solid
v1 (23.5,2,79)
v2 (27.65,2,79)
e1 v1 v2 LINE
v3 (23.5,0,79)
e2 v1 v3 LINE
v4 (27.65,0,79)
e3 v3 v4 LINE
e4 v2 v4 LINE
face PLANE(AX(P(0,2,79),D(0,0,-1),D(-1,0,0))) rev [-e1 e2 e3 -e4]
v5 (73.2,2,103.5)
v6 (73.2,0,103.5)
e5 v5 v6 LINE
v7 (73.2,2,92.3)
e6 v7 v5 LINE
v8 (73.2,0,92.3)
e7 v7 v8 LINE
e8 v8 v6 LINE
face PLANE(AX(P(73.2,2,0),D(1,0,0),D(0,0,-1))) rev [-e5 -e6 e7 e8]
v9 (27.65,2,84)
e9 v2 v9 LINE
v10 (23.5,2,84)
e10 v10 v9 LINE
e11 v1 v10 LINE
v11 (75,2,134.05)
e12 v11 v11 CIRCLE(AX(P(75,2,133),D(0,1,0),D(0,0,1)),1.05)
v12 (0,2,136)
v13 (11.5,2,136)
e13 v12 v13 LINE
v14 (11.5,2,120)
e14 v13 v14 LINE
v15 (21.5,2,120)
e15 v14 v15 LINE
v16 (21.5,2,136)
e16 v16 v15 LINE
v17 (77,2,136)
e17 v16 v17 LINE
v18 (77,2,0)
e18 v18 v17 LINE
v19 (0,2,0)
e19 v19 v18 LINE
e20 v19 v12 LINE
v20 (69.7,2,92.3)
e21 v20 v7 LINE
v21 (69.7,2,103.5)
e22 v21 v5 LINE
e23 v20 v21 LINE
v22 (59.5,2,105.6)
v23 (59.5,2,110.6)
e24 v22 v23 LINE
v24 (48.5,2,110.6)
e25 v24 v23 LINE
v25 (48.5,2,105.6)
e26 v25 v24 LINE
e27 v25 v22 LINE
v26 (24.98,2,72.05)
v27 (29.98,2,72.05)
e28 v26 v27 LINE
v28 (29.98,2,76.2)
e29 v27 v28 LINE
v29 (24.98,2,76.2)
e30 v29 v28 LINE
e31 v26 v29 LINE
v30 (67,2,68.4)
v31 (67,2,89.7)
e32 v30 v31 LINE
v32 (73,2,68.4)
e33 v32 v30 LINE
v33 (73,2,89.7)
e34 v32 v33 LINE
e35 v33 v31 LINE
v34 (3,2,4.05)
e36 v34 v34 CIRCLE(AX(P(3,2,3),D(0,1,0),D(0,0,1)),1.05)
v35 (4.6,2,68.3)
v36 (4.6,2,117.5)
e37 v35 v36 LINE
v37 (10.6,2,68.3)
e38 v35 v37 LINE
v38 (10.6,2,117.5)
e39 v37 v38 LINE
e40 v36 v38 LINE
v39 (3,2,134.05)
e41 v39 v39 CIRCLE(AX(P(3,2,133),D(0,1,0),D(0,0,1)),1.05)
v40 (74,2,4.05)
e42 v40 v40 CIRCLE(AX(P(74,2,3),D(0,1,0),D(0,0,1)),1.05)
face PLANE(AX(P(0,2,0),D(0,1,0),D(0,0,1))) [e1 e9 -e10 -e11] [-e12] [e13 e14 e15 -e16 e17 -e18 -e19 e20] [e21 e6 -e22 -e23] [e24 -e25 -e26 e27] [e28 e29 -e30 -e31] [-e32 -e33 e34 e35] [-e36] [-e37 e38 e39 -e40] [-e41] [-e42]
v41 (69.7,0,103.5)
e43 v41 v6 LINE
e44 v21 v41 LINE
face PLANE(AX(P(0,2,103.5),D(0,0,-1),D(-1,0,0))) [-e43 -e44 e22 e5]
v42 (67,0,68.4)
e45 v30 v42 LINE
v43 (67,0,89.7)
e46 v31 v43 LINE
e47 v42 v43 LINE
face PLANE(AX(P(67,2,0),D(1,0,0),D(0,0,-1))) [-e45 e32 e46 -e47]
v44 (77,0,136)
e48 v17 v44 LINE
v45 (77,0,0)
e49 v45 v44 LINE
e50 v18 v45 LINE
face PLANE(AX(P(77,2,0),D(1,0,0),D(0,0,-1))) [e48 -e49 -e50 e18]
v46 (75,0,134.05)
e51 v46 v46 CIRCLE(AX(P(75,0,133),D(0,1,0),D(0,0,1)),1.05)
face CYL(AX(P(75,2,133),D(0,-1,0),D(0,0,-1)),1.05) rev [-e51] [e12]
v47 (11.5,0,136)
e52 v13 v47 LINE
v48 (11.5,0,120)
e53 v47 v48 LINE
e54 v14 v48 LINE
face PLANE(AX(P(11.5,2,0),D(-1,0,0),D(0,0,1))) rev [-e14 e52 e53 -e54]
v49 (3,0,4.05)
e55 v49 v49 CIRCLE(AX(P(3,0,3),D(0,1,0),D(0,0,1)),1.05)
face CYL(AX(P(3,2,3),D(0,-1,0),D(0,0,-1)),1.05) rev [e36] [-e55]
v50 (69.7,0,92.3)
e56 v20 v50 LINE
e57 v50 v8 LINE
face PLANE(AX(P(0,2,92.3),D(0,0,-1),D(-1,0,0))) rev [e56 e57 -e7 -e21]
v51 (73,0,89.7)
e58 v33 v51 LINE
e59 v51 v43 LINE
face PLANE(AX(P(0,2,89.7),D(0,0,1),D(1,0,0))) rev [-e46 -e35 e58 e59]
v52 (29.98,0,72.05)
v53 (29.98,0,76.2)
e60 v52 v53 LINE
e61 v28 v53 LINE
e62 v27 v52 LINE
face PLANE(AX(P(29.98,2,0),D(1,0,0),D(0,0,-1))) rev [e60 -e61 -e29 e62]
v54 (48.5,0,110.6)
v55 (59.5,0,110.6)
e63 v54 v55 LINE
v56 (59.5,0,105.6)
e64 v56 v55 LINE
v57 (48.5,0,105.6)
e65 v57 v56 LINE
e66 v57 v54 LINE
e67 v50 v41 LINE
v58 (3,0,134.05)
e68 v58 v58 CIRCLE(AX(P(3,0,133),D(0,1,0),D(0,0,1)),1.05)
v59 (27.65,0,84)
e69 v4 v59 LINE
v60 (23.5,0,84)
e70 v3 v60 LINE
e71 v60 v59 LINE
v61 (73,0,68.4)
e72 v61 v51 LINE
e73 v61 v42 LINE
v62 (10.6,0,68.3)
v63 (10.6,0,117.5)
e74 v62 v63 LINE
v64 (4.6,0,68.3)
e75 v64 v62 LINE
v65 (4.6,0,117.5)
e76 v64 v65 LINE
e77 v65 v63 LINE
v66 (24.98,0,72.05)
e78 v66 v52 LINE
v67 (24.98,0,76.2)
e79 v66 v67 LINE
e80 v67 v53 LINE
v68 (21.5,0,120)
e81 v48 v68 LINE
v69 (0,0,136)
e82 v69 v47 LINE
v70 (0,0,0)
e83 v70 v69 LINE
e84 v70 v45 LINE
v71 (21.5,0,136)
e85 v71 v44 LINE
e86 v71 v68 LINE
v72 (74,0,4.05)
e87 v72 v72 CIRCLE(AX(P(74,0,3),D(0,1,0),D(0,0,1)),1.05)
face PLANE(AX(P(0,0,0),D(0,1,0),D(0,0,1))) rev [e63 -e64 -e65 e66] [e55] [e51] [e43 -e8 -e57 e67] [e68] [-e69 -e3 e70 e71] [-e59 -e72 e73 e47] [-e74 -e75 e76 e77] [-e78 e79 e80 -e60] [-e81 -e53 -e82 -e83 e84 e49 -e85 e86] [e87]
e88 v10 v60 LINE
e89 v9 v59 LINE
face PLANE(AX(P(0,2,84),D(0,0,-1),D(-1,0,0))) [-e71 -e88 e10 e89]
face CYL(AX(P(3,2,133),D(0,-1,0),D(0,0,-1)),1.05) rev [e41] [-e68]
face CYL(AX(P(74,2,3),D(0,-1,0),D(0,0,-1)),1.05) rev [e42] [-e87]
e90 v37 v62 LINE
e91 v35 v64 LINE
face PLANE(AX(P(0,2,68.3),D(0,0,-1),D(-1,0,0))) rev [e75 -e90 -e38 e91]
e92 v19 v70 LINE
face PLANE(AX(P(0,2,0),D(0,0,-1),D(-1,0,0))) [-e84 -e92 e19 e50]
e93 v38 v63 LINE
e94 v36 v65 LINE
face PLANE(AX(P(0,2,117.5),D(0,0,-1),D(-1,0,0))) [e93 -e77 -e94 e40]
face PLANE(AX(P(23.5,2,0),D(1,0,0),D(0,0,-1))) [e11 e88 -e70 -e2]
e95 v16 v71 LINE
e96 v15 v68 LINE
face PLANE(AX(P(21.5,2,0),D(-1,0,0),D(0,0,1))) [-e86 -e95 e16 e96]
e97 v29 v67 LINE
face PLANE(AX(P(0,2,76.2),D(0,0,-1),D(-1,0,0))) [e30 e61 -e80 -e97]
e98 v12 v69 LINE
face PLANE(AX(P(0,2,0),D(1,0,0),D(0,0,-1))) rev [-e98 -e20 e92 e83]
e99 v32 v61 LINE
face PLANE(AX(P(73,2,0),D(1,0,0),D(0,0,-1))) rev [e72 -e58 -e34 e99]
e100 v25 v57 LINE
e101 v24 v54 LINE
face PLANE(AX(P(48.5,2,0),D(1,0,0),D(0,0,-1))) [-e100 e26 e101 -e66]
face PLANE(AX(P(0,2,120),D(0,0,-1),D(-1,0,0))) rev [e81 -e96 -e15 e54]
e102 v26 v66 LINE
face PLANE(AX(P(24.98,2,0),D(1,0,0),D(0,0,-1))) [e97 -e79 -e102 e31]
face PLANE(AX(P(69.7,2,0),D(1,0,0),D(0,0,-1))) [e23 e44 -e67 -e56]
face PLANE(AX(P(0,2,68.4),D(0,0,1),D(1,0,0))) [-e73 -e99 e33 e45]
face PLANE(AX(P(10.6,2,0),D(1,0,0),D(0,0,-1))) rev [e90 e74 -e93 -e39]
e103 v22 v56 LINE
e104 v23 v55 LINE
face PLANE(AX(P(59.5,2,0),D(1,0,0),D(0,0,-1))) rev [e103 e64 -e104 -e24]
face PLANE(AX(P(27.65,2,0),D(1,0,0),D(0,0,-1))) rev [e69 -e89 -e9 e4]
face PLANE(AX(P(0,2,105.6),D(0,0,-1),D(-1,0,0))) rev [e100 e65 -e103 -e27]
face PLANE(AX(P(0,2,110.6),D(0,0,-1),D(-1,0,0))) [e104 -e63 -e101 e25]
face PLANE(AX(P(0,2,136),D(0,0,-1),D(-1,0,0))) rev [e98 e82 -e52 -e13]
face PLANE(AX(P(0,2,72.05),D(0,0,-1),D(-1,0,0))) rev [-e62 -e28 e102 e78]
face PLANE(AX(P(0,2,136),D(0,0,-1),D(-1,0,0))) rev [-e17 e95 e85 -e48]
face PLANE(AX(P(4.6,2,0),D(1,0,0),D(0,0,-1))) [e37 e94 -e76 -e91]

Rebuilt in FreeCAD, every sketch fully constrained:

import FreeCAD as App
import Part
import Sketcher

V = App.Vector


def add_polygon(sketch, points):
    """Adds a closed chain of lines whose ends are joined by coincident constraints."""
    first, n = sketch.GeometryCount, len(points)
    for a, b in zip(points, points[1:] + points[:1]):
        sketch.addGeometry(Part.LineSegment(App.Vector(*a, 0), App.Vector(*b, 0)), False)
    for i in range(n):
        sketch.addConstraint(Sketcher.Constraint("Coincident", first + i, 2, first + (i + 1) % n, 1))

doc = App.newDocument("Part")
body = doc.addObject("PartDesign::Body", "Body")

sketch1 = body.newObject("Sketcher::SketchObject", "Sketch")
sketch1.AttachmentSupport = (doc.getObject("XZ_Plane"), [""])
sketch1.MapMode = "FlatFace"
add_polygon(sketch1, [(77, 0), (0, 0), (0, 136), (11.5, 136), (11.5, 120), (21.5, 120), (21.5, 136), (77, 136)])
sketch1.addGeometry(Part.Circle(V(3, 133, 0), V(0, 0, 1), 1.05), False)
add_polygon(sketch1, [(10.6, 117.5), (4.6, 117.5), (4.6, 68.3), (10.6, 68.3)])
add_polygon(sketch1, [(27.65, 84), (23.5, 84), (23.5, 79), (27.65, 79)])
add_polygon(sketch1, [(29.98, 76.2), (24.98, 76.2), (24.98, 72.05), (29.98, 72.05)])
add_polygon(sketch1, [(59.5, 110.6), (48.5, 110.6), (48.5, 105.6), (59.5, 105.6)])
sketch1.addGeometry(Part.Circle(V(75, 133, 0), V(0, 0, 1), 1.05), False)
add_polygon(sketch1, [(73.2, 103.5), (69.7, 103.5), (69.7, 92.3), (73.2, 92.3)])
add_polygon(sketch1, [(73, 89.7), (67, 89.7), (67, 68.4), (73, 68.4)])
sketch1.addGeometry(Part.Circle(V(3, 3, 0), V(0, 0, 1), 1.05), False)
sketch1.addGeometry(Part.Circle(V(74, 3, 0), V(0, 0, 1), 1.05), False)
sketch1.addConstraint([
    Sketcher.Constraint("Horizontal", 0),
    Sketcher.Constraint("Vertical", 1),
    Sketcher.Constraint("Horizontal", 2),
    Sketcher.Constraint("Vertical", 3),
    Sketcher.Constraint("Horizontal", 4),
    Sketcher.Constraint("Vertical", 5),
    Sketcher.Constraint("Horizontal", 6),
    Sketcher.Constraint("Vertical", 7),
    Sketcher.Constraint("Horizontal", 9),
    Sketcher.Constraint("Vertical", 10),
    Sketcher.Constraint("Horizontal", 11),
    Sketcher.Constraint("Vertical", 12),
    Sketcher.Constraint("Horizontal", 13),
    Sketcher.Constraint("Vertical", 14),
    Sketcher.Constraint("Horizontal", 15),
    Sketcher.Constraint("Vertical", 16),
    Sketcher.Constraint("Horizontal", 17),
    Sketcher.Constraint("Vertical", 18),
    Sketcher.Constraint("Horizontal", 19),
    Sketcher.Constraint("Vertical", 20),
    Sketcher.Constraint("Horizontal", 21),
    Sketcher.Constraint("Vertical", 22),
    Sketcher.Constraint("Horizontal", 23),
    Sketcher.Constraint("Vertical", 24),
    Sketcher.Constraint("Horizontal", 26),
    Sketcher.Constraint("Vertical", 27),
    Sketcher.Constraint("Horizontal", 28),
    Sketcher.Constraint("Vertical", 29),
    Sketcher.Constraint("Horizontal", 30),
    Sketcher.Constraint("Vertical", 31),
    Sketcher.Constraint("Horizontal", 32),
    Sketcher.Constraint("Vertical", 33),
    Sketcher.Constraint("Coincident", 0, 2, -1, 1),
    Sketcher.Constraint("Equal", 8, 25),
    Sketcher.Constraint("Equal", 25, 34),
    Sketcher.Constraint("Equal", 34, 35),
    Sketcher.Constraint("Horizontal", 8, 3, 25, 3),
    Sketcher.Constraint("Horizontal", 34, 3, 35, 3),
    Sketcher.Constraint("Horizontal", 2, 2, 5, 2),
    Sketcher.Constraint("Vertical", 8, 3, 34, 3),
    Sketcher.Constraint("Equal", 11, 30),
    Sketcher.Constraint("Equal", 19, 14),
    Sketcher.Constraint("Equal", 15, 18),
    Sketcher.Constraint("Equal", 16, 22),
    Sketcher.Constraint("Diameter", 8, 2.1),
    Sketcher.Constraint("DistanceX", 0, 2, 0, 1, 77.0),
    Sketcher.Constraint("DistanceX", 4, 1, 4, 2, 10.0),
    Sketcher.Constraint("DistanceX", 9, 2, 9, 1, 6.0),
    Sketcher.Constraint("DistanceX", 17, 2, 17, 1, 5.0),
    Sketcher.Constraint("DistanceX", 21, 2, 21, 1, 11.0),
    Sketcher.Constraint("DistanceY", 1, 1, 1, 2, 136.0),
    Sketcher.Constraint("DistanceY", 3, 2, 3, 1, 16.0),
    Sketcher.Constraint("DistanceX", 2, 1, 2, 2, 11.5),
    Sketcher.Constraint("DistanceX", 26, 2, 26, 1, 3.5),
    Sketcher.Constraint("DistanceY", 10, 2, 10, 1, 49.2),
    Sketcher.Constraint("DistanceY", 27, 2, 27, 1, 11.2),
    Sketcher.Constraint("DistanceY", 31, 2, 31, 1, 21.3),
    Sketcher.Constraint("DistanceX", -1, 1, 8, 3, 3.0),
    Sketcher.Constraint("DistanceY", -1, 1, 8, 3, 133.0),
    Sketcher.Constraint("DistanceX", -1, 1, 25, 3, 75.0),
    Sketcher.Constraint("DistanceY", -1, 1, 34, 3, 3.0),
    Sketcher.Constraint("DistanceX", -1, 1, 35, 3, 74.0),
    Sketcher.Constraint("DistanceY", -1, 1, 13, 2, 84.0),
    Sketcher.Constraint("DistanceX", -1, 1, 30, 2, 67.0),
    Sketcher.Constraint("DistanceX", 4, 2, 13, 2, 2.0),
    Sketcher.Constraint("DistanceX", 4, 2, 21, 2, 27.0),
    Sketcher.Constraint("DistanceX", 13, 2, 13, 1, 4.15),
    Sketcher.Constraint("DistanceX", -1, 1, 9, 2, 4.6),
    Sketcher.Constraint("DistanceY", -1, 1, 9, 2, 117.5),
    Sketcher.Constraint("DistanceY", -1, 1, 17, 2, 76.2),
    Sketcher.Constraint("DistanceY", -1, 1, 21, 2, 110.6),
    Sketcher.Constraint("DistanceX", -1, 1, 26, 2, 69.7),
    Sketcher.Constraint("DistanceY", -1, 1, 26, 2, 103.5),
    Sketcher.Constraint("DistanceY", -1, 1, 30, 2, 89.7),
    Sketcher.Constraint("DistanceX", -1, 1, 17, 2, 24.98),
])
pad1 = body.newObject("PartDesign::Pad", "Pad")
pad1.Profile = sketch1
pad1.Length = 2
pad1.Reversed = True

doc.recompute()
